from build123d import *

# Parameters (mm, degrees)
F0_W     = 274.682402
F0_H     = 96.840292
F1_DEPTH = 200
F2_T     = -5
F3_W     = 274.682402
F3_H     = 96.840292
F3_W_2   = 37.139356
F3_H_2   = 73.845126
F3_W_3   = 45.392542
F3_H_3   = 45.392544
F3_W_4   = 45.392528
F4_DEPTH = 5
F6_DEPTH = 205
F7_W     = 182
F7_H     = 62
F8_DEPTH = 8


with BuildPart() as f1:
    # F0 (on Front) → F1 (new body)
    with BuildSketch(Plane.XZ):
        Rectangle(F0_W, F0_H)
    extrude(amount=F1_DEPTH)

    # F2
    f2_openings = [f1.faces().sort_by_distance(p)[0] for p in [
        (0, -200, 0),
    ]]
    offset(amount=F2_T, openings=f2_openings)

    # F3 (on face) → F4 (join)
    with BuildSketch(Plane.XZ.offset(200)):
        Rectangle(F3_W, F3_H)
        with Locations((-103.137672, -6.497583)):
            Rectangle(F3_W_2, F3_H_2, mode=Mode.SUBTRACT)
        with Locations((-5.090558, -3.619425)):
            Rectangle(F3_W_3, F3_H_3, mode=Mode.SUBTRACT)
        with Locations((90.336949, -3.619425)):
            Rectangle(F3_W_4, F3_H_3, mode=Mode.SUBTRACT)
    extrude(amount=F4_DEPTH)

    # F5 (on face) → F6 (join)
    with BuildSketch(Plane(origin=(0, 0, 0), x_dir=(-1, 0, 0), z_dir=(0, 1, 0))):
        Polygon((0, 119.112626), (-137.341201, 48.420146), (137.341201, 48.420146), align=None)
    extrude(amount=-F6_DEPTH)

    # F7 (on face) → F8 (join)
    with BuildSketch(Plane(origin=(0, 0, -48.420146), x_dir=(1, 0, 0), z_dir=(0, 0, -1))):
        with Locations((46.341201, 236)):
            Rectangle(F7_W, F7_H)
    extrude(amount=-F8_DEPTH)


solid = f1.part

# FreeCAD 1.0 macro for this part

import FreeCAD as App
import Part
import Sketcher
Q = App.Units.Quantity


def faces_at(feature, points):
    """Names of the faces that lie closest to the given points."""
    faces = feature.Shape.Faces
    near = lambda p: min(range(len(faces)), key=lambda i: faces[i].distToShape(Part.Vertex(*p))[0])
    return sorted({f"Face{near(p) + 1}" for p in points})

doc = App.newDocument("Part")
body = doc.addObject("PartDesign::Body", "Body")

sketch1 = doc.addObject("Sketcher::SketchObject", "Sketch")
body.addObject(sketch1)
sketch1.AttachmentSupport = (doc.XZ_Plane, [""])
sketch1.MapMode = "FlatFace"
sketch1.addGeometry(Part.LineSegment(App.Vector(-137.341201, 48.420146, 0), App.Vector(-137.341201, -48.420146, 0)), False)
sketch1.addGeometry(Part.LineSegment(App.Vector(-137.341201, -48.420146, 0), App.Vector(137.341201, -48.420146, 0)), False)
sketch1.addGeometry(Part.LineSegment(App.Vector(137.341201, -48.420146, 0), App.Vector(137.341201, 48.420146, 0)), False)
sketch1.addGeometry(Part.LineSegment(App.Vector(137.341201, 48.420146, 0), App.Vector(-137.341201, 48.420146, 0)), False)
sketch1.addConstraint(Sketcher.Constraint("Coincident", 0, 2, 1, 1))
sketch1.addConstraint(Sketcher.Constraint("Coincident", 1, 2, 2, 1))
sketch1.addConstraint(Sketcher.Constraint("Coincident", 2, 2, 3, 1))
sketch1.addConstraint(Sketcher.Constraint("Coincident", 3, 2, 0, 1))
sketch1.addConstraint(Sketcher.Constraint("Vertical", 0))
sketch1.addConstraint(Sketcher.Constraint("Horizontal", 1))
sketch1.addConstraint(Sketcher.Constraint("Vertical", 2))
sketch1.addConstraint(Sketcher.Constraint("Horizontal", 3))
sketch1.addConstraint(Sketcher.Constraint("Symmetric", 0, 2, 2, 2, -1, 1))
sketch1.addConstraint(Sketcher.Constraint("DistanceX", 0, 2, -1, 1, Q("137.341201 mm")))
sketch1.addConstraint(Sketcher.Constraint("DistanceY", 0, 2, 0, 1, Q("96.840292 mm")))
pad1 = doc.addObject("PartDesign::Pad", "Pad")
body.addObject(pad1)
pad1.Profile = sketch1
pad1.Length = 200
doc.recompute()

thickness = doc.addObject("PartDesign::Thickness", "Thickness")
body.addObject(thickness)
thickness.Base = (pad1, faces_at(pad1, [(0, -200, 0)]))
thickness.Value = 5
thickness.Reversed = True
thickness.Join = "Arc"

sketch2 = doc.addObject("Sketcher::SketchObject", "Sketch001")
body.addObject(sketch2)
sketch2.AttachmentSupport = (doc.XZ_Plane, [""])
sketch2.MapMode = "FlatFace"
sketch2.AttachmentOffset = App.Placement(App.Vector(0, 0, 200), App.Rotation())
sketch2.addGeometry(Part.LineSegment(App.Vector(-137.341201, 48.420146, 0), App.Vector(-137.341201, -48.420146, 0)), False)
sketch2.addGeometry(Part.LineSegment(App.Vector(-137.341201, -48.420146, 0), App.Vector(137.341201, -48.420146, 0)), False)
sketch2.addGeometry(Part.LineSegment(App.Vector(137.341201, -48.420146, 0), App.Vector(137.341201, 48.420146, 0)), False)
sketch2.addGeometry(Part.LineSegment(App.Vector(137.341201, 48.420146, 0), App.Vector(-137.341201, 48.420146, 0)), False)
sketch2.addGeometry(Part.LineSegment(App.Vector(-84.567994, -43.420146, 0), App.Vector(-121.70735, -43.420146, 0)), False)
sketch2.addGeometry(Part.LineSegment(App.Vector(-121.70735, -43.420146, 0), App.Vector(-121.70735, 30.42498, 0)), False)
sketch2.addGeometry(Part.LineSegment(App.Vector(-121.70735, 30.42498, 0), App.Vector(-84.567994, 30.42498, 0)), False)
sketch2.addGeometry(Part.LineSegment(App.Vector(-84.567994, 30.42498, 0), App.Vector(-84.567994, -43.420146, 0)), False)
sketch2.addGeometry(Part.LineSegment(App.Vector(17.605713, -26.315697, 0), App.Vector(-27.786829, -26.315697, 0)), False)
sketch2.addGeometry(Part.LineSegment(App.Vector(-27.786829, -26.315697, 0), App.Vector(-27.786829, 19.076847, 0)), False)
sketch2.addGeometry(Part.LineSegment(App.Vector(-27.786829, 19.076847, 0), App.Vector(17.605713, 19.076847, 0)), False)
sketch2.addGeometry(Part.LineSegment(App.Vector(17.605713, 19.076847, 0), App.Vector(17.605713, -26.315697, 0)), False)
sketch2.addGeometry(Part.LineSegment(App.Vector(113.033213, -26.315697, 0), App.Vector(67.640685, -26.315697, 0)), False)
sketch2.addGeometry(Part.LineSegment(App.Vector(67.640685, -26.315697, 0), App.Vector(67.640685, 19.076847, 0)), False)
sketch2.addGeometry(Part.LineSegment(App.Vector(67.640685, 19.076847, 0), App.Vector(113.033213, 19.076847, 0)), False)
sketch2.addGeometry(Part.LineSegment(App.Vector(113.033213, 19.076847, 0), App.Vector(113.033213, -26.315697, 0)), False)
sketch2.addConstraint(Sketcher.Constraint("Coincident", 0, 2, 1, 1))
sketch2.addConstraint(Sketcher.Constraint("Coincident", 1, 2, 2, 1))
sketch2.addConstraint(Sketcher.Constraint("Coincident", 2, 2, 3, 1))
sketch2.addConstraint(Sketcher.Constraint("Coincident", 3, 2, 0, 1))
sketch2.addConstraint(Sketcher.Constraint("Coincident", 4, 2, 5, 1))
sketch2.addConstraint(Sketcher.Constraint("Coincident", 5, 2, 6, 1))
sketch2.addConstraint(Sketcher.Constraint("Coincident", 6, 2, 7, 1))
sketch2.addConstraint(Sketcher.Constraint("Coincident", 7, 2, 4, 1))
sketch2.addConstraint(Sketcher.Constraint("Coincident", 8, 2, 9, 1))
sketch2.addConstraint(Sketcher.Constraint("Coincident", 9, 2, 10, 1))
sketch2.addConstraint(Sketcher.Constraint("Coincident", 10, 2, 11, 1))
sketch2.addConstraint(Sketcher.Constraint("Coincident", 11, 2, 8, 1))
sketch2.addConstraint(Sketcher.Constraint("Coincident", 12, 2, 13, 1))
sketch2.addConstraint(Sketcher.Constraint("Coincident", 13, 2, 14, 1))
sketch2.addConstraint(Sketcher.Constraint("Coincident", 14, 2, 15, 1))
sketch2.addConstraint(Sketcher.Constraint("Coincident", 15, 2, 12, 1))
sketch2.addConstraint(Sketcher.Constraint("Vertical", 0))
sketch2.addConstraint(Sketcher.Constraint("Horizontal", 1))
sketch2.addConstraint(Sketcher.Constraint("Vertical", 2))
sketch2.addConstraint(Sketcher.Constraint("Horizontal", 3))
sketch2.addConstraint(Sketcher.Constraint("Horizontal", 4))
sketch2.addConstraint(Sketcher.Constraint("Vertical", 5))
sketch2.addConstraint(Sketcher.Constraint("Horizontal", 6))
sketch2.addConstraint(Sketcher.Constraint("Vertical", 7))
sketch2.addConstraint(Sketcher.Constraint("Horizontal", 8))
sketch2.addConstraint(Sketcher.Constraint("Vertical", 9))
sketch2.addConstraint(Sketcher.Constraint("Horizontal", 10))
sketch2.addConstraint(Sketcher.Constraint("Vertical", 11))
sketch2.addConstraint(Sketcher.Constraint("Horizontal", 12))
sketch2.addConstraint(Sketcher.Constraint("Vertical", 13))
sketch2.addConstraint(Sketcher.Constraint("Horizontal", 14))
sketch2.addConstraint(Sketcher.Constraint("Vertical", 15))
sketch2.addConstraint(Sketcher.Constraint("Symmetric", 0, 2, 2, 2, -1, 1))
sketch2.addConstraint(Sketcher.Constraint("Horizontal", 11, 2, 12, 2))
sketch2.addConstraint(Sketcher.Constraint("Horizontal", 10, 2, 13, 2))
sketch2.addConstraint(Sketcher.Constraint("Equal", 10, 9))
sketch2.addConstraint(Sketcher.Constraint("DistanceY", 0, 2, 4, 2, Q("5 mm")))
sketch2.addConstraint(Sketcher.Constraint("DistanceX", 0, 2, -1, 1, Q("137.341201 mm")))
sketch2.addConstraint(Sketcher.Constraint("DistanceY", 10, 2, 2, 2, Q("29.343299 mm")))
sketch2.addConstraint(Sketcher.Constraint("DistanceX", 10, 2, 14, 2, Q("95.4275 mm")))
sketch2.addConstraint(Sketcher.Constraint("DistanceX", 4, 2, 4, 1, Q("37.139356 mm")))
sketch2.addConstraint(Sketcher.Constraint("DistanceX", 8, 2, 8, 1, Q("45.392542 mm")))
sketch2.addConstraint(Sketcher.Constraint("DistanceX", 12, 2, 12, 1, Q("45.392528 mm")))
sketch2.addConstraint(Sketcher.Constraint("DistanceY", 0, 2, 0, 1, Q("96.840292 mm")))
sketch2.addConstraint(Sketcher.Constraint("DistanceY", 5, 1, 5, 2, Q("73.845126 mm")))
sketch2.addConstraint(Sketcher.Constraint("DistanceX", 4, 2, -1, 1, Q("121.70735 mm")))
sketch2.addConstraint(Sketcher.Constraint("DistanceX", 8, 2, -1, 1, Q("27.786829 mm")))
pad2 = doc.addObject("PartDesign::Pad", "Pad001")
body.addObject(pad2)
pad2.Profile = sketch2
pad2.Length = 5

sketch3 = doc.addObject("Sketcher::SketchObject", "Sketch002")
body.addObject(sketch3)
sketch3.AttachmentSupport = (doc.XZ_Plane, [""])
sketch3.MapMode = "FlatFace"
sketch3.addGeometry(Part.LineSegment(App.Vector(0, 119.112626, 0), App.Vector(137.341201, 48.420146, 0)), False)
sketch3.addGeometry(Part.LineSegment(App.Vector(137.341201, 48.420146, 0), App.Vector(-137.341201, 48.420146, 0)), False)
sketch3.addGeometry(Part.LineSegment(App.Vector(-137.341201, 48.420146, 0), App.Vector(0, 119.112626, 0)), False)
sketch3.addConstraint(Sketcher.Constraint("Coincident", 0, 2, 1, 1))
sketch3.addConstraint(Sketcher.Constraint("Coincident", 1, 2, 2, 1))
sketch3.addConstraint(Sketcher.Constraint("Coincident", 2, 2, 0, 1))
sketch3.addConstraint(Sketcher.Constraint("Horizontal", 1))
sketch3.addConstraint(Sketcher.Constraint("PointOnObject", 2, 2, -2))
sketch3.addConstraint(Sketcher.Constraint("Equal", 0, 2))
sketch3.addConstraint(Sketcher.Constraint("DistanceX", -1, 1, 0, 2, Q("137.341201 mm")))
sketch3.addConstraint(Sketcher.Constraint("Distance", 0, Q("154.466929 mm")))
sketch3.addConstraint(Sketcher.Constraint("DistanceY", -1, 1, 0, 2, Q("48.420146 mm")))
pad3 = doc.addObject("PartDesign::Pad", "Pad002")
body.addObject(pad3)
pad3.Profile = sketch3
pad3.Length = 205

sketch4 = doc.addObject("Sketcher::SketchObject", "Sketch003")
body.addObject(sketch4)
sketch4.AttachmentSupport = (doc.XY_Plane, [""])
sketch4.MapMode = "FlatFace"
sketch4.AttachmentOffset = App.Placement(App.Vector(0, 0, -48.420146), App.Rotation())
sketch4.addGeometry(Part.LineSegment(App.Vector(-44.658799, -267, 0), App.Vector(-44.658799, -205, 0)), False)
sketch4.addGeometry(Part.LineSegment(App.Vector(-44.658799, -205, 0), App.Vector(137.341201, -205, 0)), False)
sketch4.addGeometry(Part.LineSegment(App.Vector(137.341201, -205, 0), App.Vector(137.341201, -267, 0)), False)
sketch4.addGeometry(Part.LineSegment(App.Vector(137.341201, -267, 0), App.Vector(-44.658799, -267, 0)), False)
sketch4.addConstraint(Sketcher.Constraint("Coincident", 0, 2, 1, 1))
sketch4.addConstraint(Sketcher.Constraint("Coincident", 1, 2, 2, 1))
sketch4.addConstraint(Sketcher.Constraint("Coincident", 2, 2, 3, 1))
sketch4.addConstraint(Sketcher.Constraint("Coincident", 3, 2, 0, 1))
sketch4.addConstraint(Sketcher.Constraint("Vertical", 0))
sketch4.addConstraint(Sketcher.Constraint("Horizontal", 1))
sketch4.addConstraint(Sketcher.Constraint("Vertical", 2))
sketch4.addConstraint(Sketcher.Constraint("Horizontal", 3))
sketch4.addConstraint(Sketcher.Constraint("DistanceX", 1, 1, 1, 2, Q("182 mm")))
sketch4.addConstraint(Sketcher.Constraint("DistanceY", 0, 1, 0, 2, Q("62 mm")))
sketch4.addConstraint(Sketcher.Constraint("DistanceY", 0, 2, -1, 1, Q("205 mm")))
sketch4.addConstraint(Sketcher.Constraint("DistanceX", 0, 2, -1, 1, Q("44.658799 mm")))
pad4 = doc.addObject("PartDesign::Pad", "Pad003")
body.addObject(pad4)
pad4.Profile = sketch4
pad4.Length = 8

doc.recompute()
